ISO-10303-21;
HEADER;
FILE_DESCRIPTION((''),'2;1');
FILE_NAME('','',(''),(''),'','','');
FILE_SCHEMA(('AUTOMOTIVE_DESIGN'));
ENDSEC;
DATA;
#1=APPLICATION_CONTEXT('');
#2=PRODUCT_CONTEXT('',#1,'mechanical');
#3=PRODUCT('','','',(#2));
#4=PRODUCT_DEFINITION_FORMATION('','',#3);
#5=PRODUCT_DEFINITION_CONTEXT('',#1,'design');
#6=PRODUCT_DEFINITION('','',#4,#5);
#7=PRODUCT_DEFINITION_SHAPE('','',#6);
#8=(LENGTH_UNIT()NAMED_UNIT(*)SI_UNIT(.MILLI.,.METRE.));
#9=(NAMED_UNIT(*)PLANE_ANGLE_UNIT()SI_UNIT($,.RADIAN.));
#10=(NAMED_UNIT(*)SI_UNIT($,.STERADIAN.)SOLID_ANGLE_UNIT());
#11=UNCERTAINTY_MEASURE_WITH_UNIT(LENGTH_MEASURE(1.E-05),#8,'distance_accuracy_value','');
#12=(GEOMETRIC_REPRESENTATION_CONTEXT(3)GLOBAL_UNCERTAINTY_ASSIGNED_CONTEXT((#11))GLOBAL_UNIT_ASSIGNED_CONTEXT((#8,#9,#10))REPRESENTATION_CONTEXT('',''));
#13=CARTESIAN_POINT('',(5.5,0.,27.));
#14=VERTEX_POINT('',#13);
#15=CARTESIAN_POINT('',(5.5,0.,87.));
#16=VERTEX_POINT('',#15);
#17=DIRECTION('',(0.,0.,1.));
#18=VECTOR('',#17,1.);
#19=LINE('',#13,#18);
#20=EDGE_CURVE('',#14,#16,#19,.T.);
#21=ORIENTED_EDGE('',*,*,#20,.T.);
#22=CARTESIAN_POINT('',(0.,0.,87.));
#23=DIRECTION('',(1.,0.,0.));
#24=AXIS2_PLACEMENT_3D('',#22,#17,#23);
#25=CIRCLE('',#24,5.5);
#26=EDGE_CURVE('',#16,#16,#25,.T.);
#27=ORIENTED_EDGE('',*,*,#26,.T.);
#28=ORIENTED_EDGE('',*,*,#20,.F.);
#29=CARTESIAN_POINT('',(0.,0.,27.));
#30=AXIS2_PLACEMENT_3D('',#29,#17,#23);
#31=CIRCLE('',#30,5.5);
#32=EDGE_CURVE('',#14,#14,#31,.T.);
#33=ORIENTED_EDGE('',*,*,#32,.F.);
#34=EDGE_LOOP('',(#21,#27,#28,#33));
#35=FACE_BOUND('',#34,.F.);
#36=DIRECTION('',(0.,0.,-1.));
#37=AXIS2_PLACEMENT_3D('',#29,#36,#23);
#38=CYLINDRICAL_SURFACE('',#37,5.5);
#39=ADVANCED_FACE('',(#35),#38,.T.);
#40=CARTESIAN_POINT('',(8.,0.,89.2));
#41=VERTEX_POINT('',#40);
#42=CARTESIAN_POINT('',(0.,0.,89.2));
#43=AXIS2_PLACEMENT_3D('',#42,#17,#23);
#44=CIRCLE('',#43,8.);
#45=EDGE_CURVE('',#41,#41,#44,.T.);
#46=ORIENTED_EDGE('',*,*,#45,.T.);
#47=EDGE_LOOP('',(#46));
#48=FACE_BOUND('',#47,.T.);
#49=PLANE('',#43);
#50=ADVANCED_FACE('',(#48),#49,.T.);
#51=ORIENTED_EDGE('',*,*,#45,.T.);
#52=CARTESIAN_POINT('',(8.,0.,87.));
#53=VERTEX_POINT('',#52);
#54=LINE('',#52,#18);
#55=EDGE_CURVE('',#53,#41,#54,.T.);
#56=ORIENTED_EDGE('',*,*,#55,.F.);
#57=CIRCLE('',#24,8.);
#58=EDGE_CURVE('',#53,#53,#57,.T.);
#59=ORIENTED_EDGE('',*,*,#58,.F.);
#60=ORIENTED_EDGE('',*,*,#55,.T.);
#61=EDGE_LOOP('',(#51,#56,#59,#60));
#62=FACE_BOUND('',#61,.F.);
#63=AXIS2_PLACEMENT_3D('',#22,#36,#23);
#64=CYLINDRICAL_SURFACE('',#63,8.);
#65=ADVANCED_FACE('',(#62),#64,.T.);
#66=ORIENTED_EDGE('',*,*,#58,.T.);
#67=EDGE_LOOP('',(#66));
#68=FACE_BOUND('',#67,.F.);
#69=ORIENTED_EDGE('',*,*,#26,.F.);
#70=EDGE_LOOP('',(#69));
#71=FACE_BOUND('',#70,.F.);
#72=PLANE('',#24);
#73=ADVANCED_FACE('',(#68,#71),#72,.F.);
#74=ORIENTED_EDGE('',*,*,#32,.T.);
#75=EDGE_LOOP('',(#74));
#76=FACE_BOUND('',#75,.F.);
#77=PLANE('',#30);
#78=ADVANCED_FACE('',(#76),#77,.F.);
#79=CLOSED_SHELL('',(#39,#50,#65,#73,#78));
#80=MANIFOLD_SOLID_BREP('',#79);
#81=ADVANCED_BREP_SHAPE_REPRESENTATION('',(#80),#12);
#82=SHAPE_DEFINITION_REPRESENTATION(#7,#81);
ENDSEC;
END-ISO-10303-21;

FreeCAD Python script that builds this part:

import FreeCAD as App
import Part
import Sketcher

doc = App.newDocument("Part")
body = doc.addObject("PartDesign::Body", "Body")

sketch1 = body.newObject("Sketcher::SketchObject", "Sketch")
sketch1.AttachmentSupport = (doc.getObject("XY_Plane"), [""])
sketch1.MapMode = "FlatFace"
sketch1.addGeometry(Part.Circle(App.Vector(0, 0, 0), App.Vector(0, 0, 1), 6), False)
sketch1.addConstraint(Sketcher.Constraint("Coincident", 0, 3, -1, 1))
sketch1.addConstraint(Sketcher.Constraint("Diameter", 0, 11.0))
pad1 = body.newObject("PartDesign::Pad", "Pad")
pad1.Profile = sketch1
pad1.Length = 60
body2 = doc.addObject("PartDesign::Body", "Body001")

sketch2 = body2.newObject("Sketcher::SketchObject", "Sketch001")
sketch2.AttachmentSupport = (doc.getObject("XY_Plane001"), [""])
sketch2.MapMode = "FlatFace"
sketch2.AttachmentOffset = App.Placement(App.Vector(0, 0, 60), App.Rotation())
sketch2.addGeometry(Part.Circle(App.Vector(0, 0, 0), App.Vector(0, 0, 1), 8), False)
sketch2.addConstraint(Sketcher.Constraint("Coincident", 0, 3, -1, 1))
sketch2.addConstraint(Sketcher.Constraint("Diameter", 0, 16.0))
pad2 = body2.newObject("PartDesign::Pad", "Pad001")
pad2.Profile = sketch2
pad2.Length = 2.2
doc.recompute()

boolean = body2.newObject("PartDesign::Boolean", "Boolean")
boolean.Type = "Fuse"
boolean.addObjects([body])
body3 = doc.addObject("PartDesign::Body", "Body002")
doc.recompute()

body2.Placement = App.Placement(App.Vector(0, 0, 27), App.Rotation(App.Vector(0, 0, 1), 0))
boolean2 = body3.newObject("PartDesign::Boolean", "Boolean001")
boolean2.Type = "Fuse"
boolean2.addObjects([body2])

doc.recompute()
